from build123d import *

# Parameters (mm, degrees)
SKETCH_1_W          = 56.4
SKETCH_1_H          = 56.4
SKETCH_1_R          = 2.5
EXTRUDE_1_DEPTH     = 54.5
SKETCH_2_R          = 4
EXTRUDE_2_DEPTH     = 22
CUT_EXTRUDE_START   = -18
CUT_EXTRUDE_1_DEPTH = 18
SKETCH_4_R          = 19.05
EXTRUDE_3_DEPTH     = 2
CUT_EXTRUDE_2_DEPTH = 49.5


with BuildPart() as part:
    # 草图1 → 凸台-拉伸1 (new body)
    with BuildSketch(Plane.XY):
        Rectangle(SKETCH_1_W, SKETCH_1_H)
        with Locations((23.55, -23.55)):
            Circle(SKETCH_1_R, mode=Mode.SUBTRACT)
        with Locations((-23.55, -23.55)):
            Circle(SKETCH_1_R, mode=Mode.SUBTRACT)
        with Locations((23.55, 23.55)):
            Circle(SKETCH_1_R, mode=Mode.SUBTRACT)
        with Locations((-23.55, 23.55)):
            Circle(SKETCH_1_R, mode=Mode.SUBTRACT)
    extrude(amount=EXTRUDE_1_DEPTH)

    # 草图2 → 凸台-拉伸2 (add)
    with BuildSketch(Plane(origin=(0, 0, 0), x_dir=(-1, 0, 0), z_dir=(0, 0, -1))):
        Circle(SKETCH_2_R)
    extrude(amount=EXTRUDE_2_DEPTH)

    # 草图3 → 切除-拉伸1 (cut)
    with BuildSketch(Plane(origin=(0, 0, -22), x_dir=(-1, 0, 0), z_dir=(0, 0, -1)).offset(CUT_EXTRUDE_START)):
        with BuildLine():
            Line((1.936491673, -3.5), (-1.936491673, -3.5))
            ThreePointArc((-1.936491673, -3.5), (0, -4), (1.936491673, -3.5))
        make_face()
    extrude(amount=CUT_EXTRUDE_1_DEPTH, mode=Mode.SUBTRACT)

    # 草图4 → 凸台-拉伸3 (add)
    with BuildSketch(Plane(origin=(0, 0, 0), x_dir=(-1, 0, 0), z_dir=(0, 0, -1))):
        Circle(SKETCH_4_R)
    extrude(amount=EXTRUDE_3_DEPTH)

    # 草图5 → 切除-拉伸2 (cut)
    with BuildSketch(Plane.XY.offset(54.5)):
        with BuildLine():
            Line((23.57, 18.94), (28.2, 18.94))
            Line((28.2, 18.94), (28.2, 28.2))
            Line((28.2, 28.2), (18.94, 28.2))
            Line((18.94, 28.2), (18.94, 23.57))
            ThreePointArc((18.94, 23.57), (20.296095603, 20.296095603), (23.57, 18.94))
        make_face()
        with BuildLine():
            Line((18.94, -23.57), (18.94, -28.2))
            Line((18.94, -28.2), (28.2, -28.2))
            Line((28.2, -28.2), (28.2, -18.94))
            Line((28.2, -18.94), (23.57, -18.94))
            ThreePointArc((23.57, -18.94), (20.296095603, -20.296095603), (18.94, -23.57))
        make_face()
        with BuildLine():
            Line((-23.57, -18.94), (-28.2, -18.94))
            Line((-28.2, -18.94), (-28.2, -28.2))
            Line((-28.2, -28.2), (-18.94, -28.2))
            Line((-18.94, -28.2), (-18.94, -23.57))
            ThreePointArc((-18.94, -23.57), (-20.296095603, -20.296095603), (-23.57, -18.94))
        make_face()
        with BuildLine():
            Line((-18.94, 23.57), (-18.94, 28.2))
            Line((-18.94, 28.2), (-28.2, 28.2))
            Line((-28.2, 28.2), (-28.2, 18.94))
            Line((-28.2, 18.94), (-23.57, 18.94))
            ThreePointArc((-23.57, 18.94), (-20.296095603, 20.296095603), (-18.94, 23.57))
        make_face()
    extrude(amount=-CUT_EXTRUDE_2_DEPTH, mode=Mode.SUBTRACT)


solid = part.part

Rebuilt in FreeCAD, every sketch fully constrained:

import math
import FreeCAD as App
import Part
import Sketcher
Q = App.Units.Quantity


def add_polygon(sketch, points):
    """Adds a closed chain of lines whose ends are joined by coincident constraints."""
    first, n = sketch.GeometryCount, len(points)
    for a, b in zip(points, points[1:] + points[:1]):
        sketch.addGeometry(Part.LineSegment(App.Vector(*a, 0), App.Vector(*b, 0)), False)
    for i in range(n):
        sketch.addConstraint(Sketcher.Constraint("Coincident", first + i, 2, first + (i + 1) % n, 1))

doc = App.newDocument("Part")
body = doc.addObject("PartDesign::Body", "Body")

# Sketch on XY plane
sketch1 = doc.addObject("Sketcher::SketchObject", "Sketch")
body.addObject(sketch1)
sketch1.AttachmentSupport = (doc.XY_Plane, [""])
sketch1.MapMode = "FlatFace"
add_polygon(sketch1, [(-28.2, 28.2), (-28.2, -28.2), (28.2, -28.2), (28.2, 28.2)])  # lines 0-3
sketch1.addGeometry(Part.Circle(App.Vector(-23.6, -23.6, 0), App.Vector(0, 0, 1), 2.5), False)  # 4
sketch1.addGeometry(Part.Circle(App.Vector(23.6, -23.6, 0), App.Vector(0, 0, 1), 2.5), False)  # 5
sketch1.addGeometry(Part.Circle(App.Vector(-23.6, 23.6, 0), App.Vector(0, 0, 1), 2.5), False)  # 6
sketch1.addGeometry(Part.Circle(App.Vector(23.6, 23.6, 0), App.Vector(0, 0, 1), 2.5), False)  # 7
sketch1.addConstraint(Sketcher.Constraint("Vertical", 0))
sketch1.addConstraint(Sketcher.Constraint("Horizontal", 1))
sketch1.addConstraint(Sketcher.Constraint("Vertical", 2))
sketch1.addConstraint(Sketcher.Constraint("Horizontal", 3))
sketch1.addConstraint(Sketcher.Constraint("Equal", 4, 5))
sketch1.addConstraint(Sketcher.Constraint("Equal", 5, 6))
sketch1.addConstraint(Sketcher.Constraint("Equal", 6, 7))
sketch1.addConstraint(Sketcher.Constraint("Symmetric", 5, 3, 6, 3, -1, 1))
sketch1.addConstraint(Sketcher.Constraint("Symmetric", 4, 3, 7, 3, -1, 1))
sketch1.addConstraint(Sketcher.Constraint("Symmetric", 0, 2, 2, 2, -1, 1))
sketch1.addConstraint(Sketcher.Constraint("Symmetric", 4, 3, 5, 3, -2))
sketch1.addConstraint(Sketcher.Constraint("Equal", 3, 0))
sketch1.addConstraint(Sketcher.Constraint("Diameter", 4, Q("5 mm")))
sketch1.addConstraint(Sketcher.Constraint("DistanceX", 1, 1, 1, 2, Q("56.4 mm")))
sketch1.addConstraint(Sketcher.Constraint("DistanceX", 4, 3, 5, 3, Q("47.1 mm")))
sketch1.addConstraint(Sketcher.Constraint("DistanceY", 4, 3, 6, 3, Q("47.1 mm")))
pad1 = doc.addObject("PartDesign::Pad", "Pad")
body.addObject(pad1)
pad1.Profile = sketch1
pad1.Length = 54.5

# Sketch on XY plane
sketch2 = doc.addObject("Sketcher::SketchObject", "Sketch001")
body.addObject(sketch2)
sketch2.AttachmentSupport = (doc.XY_Plane, [""])
sketch2.MapMode = "FlatFace"
sketch2.addGeometry(Part.Circle(App.Vector(0, 0, 0), App.Vector(0, 0, 1), 4), False)
sketch2.addConstraint(Sketcher.Constraint("Coincident", 0, 3, -1, 1))
sketch2.addConstraint(Sketcher.Constraint("Diameter", 0, Q("8 mm")))
pad2 = doc.addObject("PartDesign::Pad", "Pad001")
body.addObject(pad2)
pad2.Profile = sketch2
pad2.Length = 22
pad2.Reversed = True

# Sketch on XY plane
sketch3 = doc.addObject("Sketcher::SketchObject", "Sketch002")
body.addObject(sketch3)
sketch3.AttachmentSupport = (doc.XY_Plane, [""])
sketch3.MapMode = "FlatFace"
sketch3.AttachmentOffset = App.Placement(App.Vector(0, 0, -4), App.Rotation())
sketch3.addGeometry(Part.LineSegment(App.Vector(-1.9, -3.5, 0), App.Vector(1.9, -3.5, 0)), False)
sketch3.addGeometry(Part.ArcOfCircle(Part.Circle(App.Vector(0, 0, 0), App.Vector(0, 0, 1), 4), math.radians(-119), math.radians(-61)), False)
sketch3.addConstraint(Sketcher.Constraint("Coincident", 0, 1, 1, 1))
sketch3.addConstraint(Sketcher.Constraint("Coincident", 1, 2, 0, 2))
sketch3.addConstraint(Sketcher.Constraint("Horizontal", 0))
sketch3.addConstraint(Sketcher.Constraint("Coincident", 1, 3, -1, 1))
sketch3.addConstraint(Sketcher.Constraint("Radius", 1, Q("4 mm")))
sketch3.addConstraint(Sketcher.Constraint("DistanceY", 0, 1, -1, 1, Q("3.5 mm")))
pocket1 = doc.addObject("PartDesign::Pocket", "Pocket")
body.addObject(pocket1)
pocket1.Profile = sketch3
pocket1.Length = 18

# Sketch on XY plane
sketch4 = doc.addObject("Sketcher::SketchObject", "Sketch003")
body.addObject(sketch4)
sketch4.AttachmentSupport = (doc.XY_Plane, [""])
sketch4.MapMode = "FlatFace"
sketch4.addGeometry(Part.Circle(App.Vector(0, 0, 0), App.Vector(0, 0, 1), 19), False)
sketch4.addConstraint(Sketcher.Constraint("Coincident", 0, 3, -1, 1))
sketch4.addConstraint(Sketcher.Constraint("Diameter", 0, Q("38.1 mm")))
pad3 = doc.addObject("PartDesign::Pad", "Pad002")
body.addObject(pad3)
pad3.Profile = sketch4
pad3.Length = 2
pad3.Reversed = True

# Sketch on XY plane
sketch5 = doc.addObject("Sketcher::SketchObject", "Sketch004")
body.addObject(sketch5)
sketch5.AttachmentSupport = (doc.XY_Plane, [""])
sketch5.MapMode = "FlatFace"
sketch5.AttachmentOffset = App.Placement(App.Vector(0, 0, 54.5), App.Rotation())
sketch5.addGeometry(Part.LineSegment(App.Vector(23.6, 18.9, 0), App.Vector(28.2, 18.9, 0)), False)
sketch5.addGeometry(Part.LineSegment(App.Vector(28.2, 18.9, 0), App.Vector(28.2, 28.2, 0)), False)
sketch5.addGeometry(Part.LineSegment(App.Vector(28.2, 28.2, 0), App.Vector(18.9, 28.2, 0)), False)
sketch5.addGeometry(Part.LineSegment(App.Vector(18.9, 28.2, 0), App.Vector(18.9, 23.6, 0)), False)
sketch5.addGeometry(Part.ArcOfCircle(Part.Circle(App.Vector(23.6, 23.6, 0), App.Vector(0, 0, 1), 4.6), math.radians(180), math.radians(270)), False)
sketch5.addGeometry(Part.LineSegment(App.Vector(18.9, -23.6, 0), App.Vector(18.9, -28.2, 0)), False)
sketch5.addGeometry(Part.LineSegment(App.Vector(18.9, -28.2, 0), App.Vector(28.2, -28.2, 0)), False)
sketch5.addGeometry(Part.LineSegment(App.Vector(28.2, -28.2, 0), App.Vector(28.2, -18.9, 0)), False)
sketch5.addGeometry(Part.LineSegment(App.Vector(28.2, -18.9, 0), App.Vector(23.6, -18.9, 0)), False)
sketch5.addGeometry(Part.ArcOfCircle(Part.Circle(App.Vector(23.6, -23.6, 0), App.Vector(0, 0, 1), 4.6), math.radians(90), math.radians(180)), False)
sketch5.addGeometry(Part.LineSegment(App.Vector(-23.6, -18.9, 0), App.Vector(-28.2, -18.9, 0)), False)
sketch5.addGeometry(Part.LineSegment(App.Vector(-28.2, -18.9, 0), App.Vector(-28.2, -28.2, 0)), False)
sketch5.addGeometry(Part.LineSegment(App.Vector(-28.2, -28.2, 0), App.Vector(-18.9, -28.2, 0)), False)
sketch5.addGeometry(Part.LineSegment(App.Vector(-18.9, -28.2, 0), App.Vector(-18.9, -23.6, 0)), False)
sketch5.addGeometry(Part.ArcOfCircle(Part.Circle(App.Vector(-23.6, -23.6, 0), App.Vector(0, 0, 1), 4.6), math.radians(0), math.radians(90)), False)
sketch5.addGeometry(Part.LineSegment(App.Vector(-18.9, 23.6, 0), App.Vector(-18.9, 28.2, 0)), False)
sketch5.addGeometry(Part.LineSegment(App.Vector(-18.9, 28.2, 0), App.Vector(-28.2, 28.2, 0)), False)
sketch5.addGeometry(Part.LineSegment(App.Vector(-28.2, 28.2, 0), App.Vector(-28.2, 18.9, 0)), False)
sketch5.addGeometry(Part.LineSegment(App.Vector(-28.2, 18.9, 0), App.Vector(-23.6, 18.9, 0)), False)
sketch5.addGeometry(Part.ArcOfCircle(Part.Circle(App.Vector(-23.6, 23.6, 0), App.Vector(0, 0, 1), 4.6), math.radians(-90), math.radians(0)), False)
sketch5.addConstraint(Sketcher.Constraint("Coincident", 0, 2, 1, 1))
sketch5.addConstraint(Sketcher.Constraint("Coincident", 1, 2, 2, 1))
sketch5.addConstraint(Sketcher.Constraint("Coincident", 2, 2, 3, 1))
sketch5.addConstraint(Sketcher.Constraint("Tangent", 3, 2, 4, 1))
sketch5.addConstraint(Sketcher.Constraint("Tangent", 4, 2, 0, 1))
sketch5.addConstraint(Sketcher.Constraint("Coincident", 5, 2, 6, 1))
sketch5.addConstraint(Sketcher.Constraint("Coincident", 6, 2, 7, 1))
sketch5.addConstraint(Sketcher.Constraint("Coincident", 7, 2, 8, 1))
sketch5.addConstraint(Sketcher.Constraint("Tangent", 8, 2, 9, 1))
sketch5.addConstraint(Sketcher.Constraint("Tangent", 9, 2, 5, 1))
sketch5.addConstraint(Sketcher.Constraint("Coincident", 10, 2, 11, 1))
sketch5.addConstraint(Sketcher.Constraint("Coincident", 11, 2, 12, 1))
sketch5.addConstraint(Sketcher.Constraint("Coincident", 12, 2, 13, 1))
sketch5.addConstraint(Sketcher.Constraint("Tangent", 13, 2, 14, 1))
sketch5.addConstraint(Sketcher.Constraint("Tangent", 14, 2, 10, 1))
sketch5.addConstraint(Sketcher.Constraint("Coincident", 15, 2, 16, 1))
sketch5.addConstraint(Sketcher.Constraint("Coincident", 16, 2, 17, 1))
sketch5.addConstraint(Sketcher.Constraint("Coincident", 17, 2, 18, 1))
sketch5.addConstraint(Sketcher.Constraint("Tangent", 18, 2, 19, 1))
sketch5.addConstraint(Sketcher.Constraint("Tangent", 19, 2, 15, 1))
sketch5.addConstraint(Sketcher.Constraint("Horizontal", 0))
sketch5.addConstraint(Sketcher.Constraint("Vertical", 1))
sketch5.addConstraint(Sketcher.Constraint("Horizontal", 2))
sketch5.addConstraint(Sketcher.Constraint("Vertical", 3))
sketch5.addConstraint(Sketcher.Constraint("Vertical", 5))
sketch5.addConstraint(Sketcher.Constraint("Horizontal", 6))
sketch5.addConstraint(Sketcher.Constraint("Vertical", 7))
sketch5.addConstraint(Sketcher.Constraint("Horizontal", 8))
sketch5.addConstraint(Sketcher.Constraint("Horizontal", 10))
sketch5.addConstraint(Sketcher.Constraint("Vertical", 11))
sketch5.addConstraint(Sketcher.Constraint("Horizontal", 12))
sketch5.addConstraint(Sketcher.Constraint("Vertical", 13))
sketch5.addConstraint(Sketcher.Constraint("Vertical", 15))
sketch5.addConstraint(Sketcher.Constraint("Horizontal", 16))
sketch5.addConstraint(Sketcher.Constraint("Vertical", 17))
sketch5.addConstraint(Sketcher.Constraint("Horizontal", 18))
sketch5.addConstraint(Sketcher.Constraint("Equal", 4, 9))
sketch5.addConstraint(Sketcher.Constraint("Equal", 9, 14))
sketch5.addConstraint(Sketcher.Constraint("Equal", 14, 19))
sketch5.addConstraint(Sketcher.Constraint("Symmetric", 4, 3, 14, 3, -1, 1))
sketch5.addConstraint(Sketcher.Constraint("Symmetric", 9, 3, 19, 3, -1, 1))
sketch5.addConstraint(Sketcher.Constraint("Symmetric", 1, 2, 11, 2, -1, 1))
sketch5.addConstraint(Sketcher.Constraint("Symmetric", 6, 2, 16, 2, -1, 1))
sketch5.addConstraint(Sketcher.Constraint("Symmetric", 9, 3, 14, 3, -2))
sketch5.addConstraint(Sketcher.Constraint("Symmetric", 6, 2, 11, 2, -2))
sketch5.addConstraint(Sketcher.Constraint("Equal", 16, 1))
sketch5.addConstraint(Sketcher.Constraint("Radius", 4, Q("4.63 mm")))
sketch5.addConstraint(Sketcher.Constraint("DistanceX", 0, 1, 0, 2, Q("4.63 mm")))
sketch5.addConstraint(Sketcher.Constraint("DistanceX", -1, 1, 0, 2, Q("28.2 mm")))
sketch5.addConstraint(Sketcher.Constraint("DistanceY", -1, 1, 1, 2, Q("28.2 mm")))
pocket2 = doc.addObject("PartDesign::Pocket", "Pocket001")
body.addObject(pocket2)
pocket2.Profile = sketch5
pocket2.Length = 49.5

doc.recompute()
